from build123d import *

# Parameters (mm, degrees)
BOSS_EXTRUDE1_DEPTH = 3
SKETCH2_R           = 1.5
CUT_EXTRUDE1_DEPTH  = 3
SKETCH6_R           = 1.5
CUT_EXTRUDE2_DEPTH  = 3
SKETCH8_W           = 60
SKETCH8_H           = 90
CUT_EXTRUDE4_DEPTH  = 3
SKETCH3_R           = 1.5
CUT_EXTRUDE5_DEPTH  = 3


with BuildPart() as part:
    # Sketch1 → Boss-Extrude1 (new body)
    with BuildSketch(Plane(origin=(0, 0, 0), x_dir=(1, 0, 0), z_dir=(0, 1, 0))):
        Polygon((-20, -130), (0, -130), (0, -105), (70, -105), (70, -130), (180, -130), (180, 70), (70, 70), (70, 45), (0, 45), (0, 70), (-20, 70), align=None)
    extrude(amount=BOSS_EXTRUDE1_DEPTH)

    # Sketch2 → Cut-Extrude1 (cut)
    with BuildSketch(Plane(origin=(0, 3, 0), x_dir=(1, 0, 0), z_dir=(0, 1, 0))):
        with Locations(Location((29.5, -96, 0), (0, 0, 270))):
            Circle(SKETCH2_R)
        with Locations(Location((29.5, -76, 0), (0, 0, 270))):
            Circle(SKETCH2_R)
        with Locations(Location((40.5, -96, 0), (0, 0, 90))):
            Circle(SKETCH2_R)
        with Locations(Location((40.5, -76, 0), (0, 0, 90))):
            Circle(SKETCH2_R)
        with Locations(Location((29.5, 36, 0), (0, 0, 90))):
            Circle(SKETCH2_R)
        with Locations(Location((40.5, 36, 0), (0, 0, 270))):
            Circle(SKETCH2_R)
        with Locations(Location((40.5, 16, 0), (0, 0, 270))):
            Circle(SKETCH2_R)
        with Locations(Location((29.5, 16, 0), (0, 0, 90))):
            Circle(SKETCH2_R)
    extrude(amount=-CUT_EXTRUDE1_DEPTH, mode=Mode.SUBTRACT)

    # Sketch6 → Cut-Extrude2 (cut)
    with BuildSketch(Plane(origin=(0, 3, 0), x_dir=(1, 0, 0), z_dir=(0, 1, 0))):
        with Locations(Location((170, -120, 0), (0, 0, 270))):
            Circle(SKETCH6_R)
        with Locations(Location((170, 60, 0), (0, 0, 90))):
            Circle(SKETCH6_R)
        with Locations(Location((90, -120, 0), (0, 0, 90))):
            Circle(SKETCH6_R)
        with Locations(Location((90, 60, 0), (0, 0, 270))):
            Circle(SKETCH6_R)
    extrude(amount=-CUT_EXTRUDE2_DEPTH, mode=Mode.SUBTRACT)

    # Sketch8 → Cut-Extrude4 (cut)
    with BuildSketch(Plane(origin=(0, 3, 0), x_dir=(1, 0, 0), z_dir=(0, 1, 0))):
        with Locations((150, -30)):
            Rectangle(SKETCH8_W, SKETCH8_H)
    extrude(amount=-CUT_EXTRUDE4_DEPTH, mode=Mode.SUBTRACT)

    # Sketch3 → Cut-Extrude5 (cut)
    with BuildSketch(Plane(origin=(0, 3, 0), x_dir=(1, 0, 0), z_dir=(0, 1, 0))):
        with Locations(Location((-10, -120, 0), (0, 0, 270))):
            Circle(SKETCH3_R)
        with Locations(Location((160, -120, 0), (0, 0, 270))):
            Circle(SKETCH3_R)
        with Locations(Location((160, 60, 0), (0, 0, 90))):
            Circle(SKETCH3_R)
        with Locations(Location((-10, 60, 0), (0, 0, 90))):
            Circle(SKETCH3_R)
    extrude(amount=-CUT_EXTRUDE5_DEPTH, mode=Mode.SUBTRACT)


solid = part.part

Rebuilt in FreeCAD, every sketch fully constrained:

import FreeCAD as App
import Part
import Sketcher
from FreeCAD import Vector
Q = App.Units.Quantity


def add_polygon(sketch, points):
    """Adds a closed chain of lines whose ends are joined by coincident constraints."""
    first, n = sketch.GeometryCount, len(points)
    for a, b in zip(points, points[1:] + points[:1]):
        sketch.addGeometry(Part.LineSegment(App.Vector(*a, 0), App.Vector(*b, 0)), False)
    for i in range(n):
        sketch.addConstraint(Sketcher.Constraint("Coincident", first + i, 2, first + (i + 1) % n, 1))

doc = App.newDocument("Part")
body = doc.addObject("PartDesign::Body", "Body")

# Sketch on XZ plane
sketch1 = body.newObject("Sketcher::SketchObject", "Sketch")
sketch1.AttachmentSupport = (doc.getObject("XZ_Plane"), [""])
sketch1.MapMode = "FlatFace"
add_polygon(sketch1, [(-20, 130), (0, 130), (0, 105), (70, 105), (70, 130), (180, 130), (180, -70), (70, -70), (70, -45), (0, -45), (0, -70), (-20, -70)])  # lines 0-11
sketch1.addConstraint([
    Sketcher.Constraint("Horizontal", 0),
    Sketcher.Constraint("Vertical", 1),
    Sketcher.Constraint("Horizontal", 2),
    Sketcher.Constraint("Vertical", 3),
    Sketcher.Constraint("Horizontal", 4),
    Sketcher.Constraint("Vertical", 5),
    Sketcher.Constraint("Horizontal", 6),
    Sketcher.Constraint("Vertical", 7),
    Sketcher.Constraint("Horizontal", 8),
    Sketcher.Constraint("Vertical", 9),
    Sketcher.Constraint("Horizontal", 10),
    Sketcher.Constraint("Vertical", 11),
    Sketcher.Constraint("PointOnObject", 0, 2, -2),
    Sketcher.Constraint("PointOnObject", 8, 2, -2),
    Sketcher.Constraint("Horizontal", 0, 2, 3, 2),
    Sketcher.Constraint("Horizontal", 6, 2, 9, 2),
    Sketcher.Constraint("Vertical", 3, 2, 6, 2),
    Sketcher.Constraint("Equal", 3, 7),
    Sketcher.Constraint("DistanceX", 0, 1, 0, 2, Q("20 mm")),
    Sketcher.Constraint("DistanceX", 2, 1, 2, 2, Q("70 mm")),
    Sketcher.Constraint("DistanceX", 4, 1, 4, 2, Q("110 mm")),
    Sketcher.Constraint("DistanceY", 1, 2, 1, 1, Q("25 mm")),
    Sketcher.Constraint("DistanceY", 5, 2, 5, 1, Q("200 mm")),
    Sketcher.Constraint("DistanceY", -1, 1, 0, 2, Q("130 mm")),
])
pad1 = body.newObject("PartDesign::Pad", "Pad")
pad1.Profile = sketch1
pad1.Length = 3
pad1.Reversed = True

# Sketch on XZ plane
sketch2 = body.newObject("Sketcher::SketchObject", "Sketch001")
sketch2.AttachmentSupport = (doc.getObject("XZ_Plane"), [""])
sketch2.MapMode = "FlatFace"
sketch2.AttachmentOffset = App.Placement(Vector(0, 0, -3), App.Rotation())
sketch2.addGeometry([
    Part.Circle(Vector(29.5, 96, 0), Vector(0, 0, 1), 1.5),  # 0
    Part.Circle(Vector(29.5, 76, 0), Vector(0, 0, 1), 1.5),  # 1
    Part.Circle(Vector(40.5, 96, 0), Vector(0, 0, 1), 1.5),  # 2
    Part.Circle(Vector(40.5, 76, 0), Vector(0, 0, 1), 1.5),  # 3
    Part.Circle(Vector(29.5, -36, 0), Vector(0, 0, 1), 1.5),  # 4
    Part.Circle(Vector(40.5, -36, 0), Vector(0, 0, 1), 1.5),  # 5
    Part.Circle(Vector(40.5, -16, 0), Vector(0, 0, 1), 1.5),  # 6
    Part.Circle(Vector(29.5, -16, 0), Vector(0, 0, 1), 1.5),  # 7
], False)
sketch2.addConstraint([
    Sketcher.Constraint("Equal", 0, 1),
    Sketcher.Constraint("Equal", 1, 2),
    Sketcher.Constraint("Equal", 2, 3),
    Sketcher.Constraint("Equal", 3, 4),
    Sketcher.Constraint("Equal", 4, 5),
    Sketcher.Constraint("Equal", 5, 6),
    Sketcher.Constraint("Equal", 6, 7),
    Sketcher.Constraint("Horizontal", 0, 3, 2, 3),
    Sketcher.Constraint("Horizontal", 1, 3, 3, 3),
    Sketcher.Constraint("Horizontal", 4, 3, 5, 3),
    Sketcher.Constraint("Horizontal", 6, 3, 7, 3),
    Sketcher.Constraint("Vertical", 0, 3, 1, 3),
    Sketcher.Constraint("Vertical", 2, 3, 3, 3),
    Sketcher.Constraint("Vertical", 1, 3, 4, 3),
    Sketcher.Constraint("Vertical", 3, 3, 5, 3),
    Sketcher.Constraint("Vertical", 5, 3, 6, 3),
    Sketcher.Constraint("Vertical", 4, 3, 7, 3),
    Sketcher.Constraint("Diameter", 0, Q("3 mm")),
    Sketcher.Constraint("DistanceY", -1, 1, 0, 3, Q("96 mm")),
    Sketcher.Constraint("DistanceY", -1, 1, 1, 3, Q("76 mm")),
    Sketcher.Constraint("DistanceY", 4, 3, -1, 1, Q("36 mm")),
    Sketcher.Constraint("DistanceY", 6, 3, -1, 1, Q("16 mm")),
    Sketcher.Constraint("DistanceX", 0, 3, 2, 3, Q("11 mm")),
    Sketcher.Constraint("DistanceX", -1, 1, 0, 3, Q("29.5 mm")),
])
pocket1 = body.newObject("PartDesign::Pocket", "Pocket")
pocket1.Profile = sketch2
pocket1.Length = 3
pocket1.Reversed = True

# Sketch on XZ plane
sketch3 = body.newObject("Sketcher::SketchObject", "Sketch002")
sketch3.AttachmentSupport = (doc.getObject("XZ_Plane"), [""])
sketch3.MapMode = "FlatFace"
sketch3.AttachmentOffset = App.Placement(Vector(0, 0, -3), App.Rotation())
sketch3.addGeometry([
    Part.Circle(Vector(170, 120, 0), Vector(0, 0, 1), 1.5),
    Part.Circle(Vector(170, -60, 0), Vector(0, 0, 1), 1.5),
    Part.Circle(Vector(90, 120, 0), Vector(0, 0, 1), 1.5),
    Part.Circle(Vector(90, -60, 0), Vector(0, 0, 1), 1.5),
], False)
sketch3.addConstraint([
    Sketcher.Constraint("Equal", 0, 1),
    Sketcher.Constraint("Equal", 1, 2),
    Sketcher.Constraint("Equal", 2, 3),
    Sketcher.Constraint("Horizontal", 0, 3, 2, 3),
    Sketcher.Constraint("Horizontal", 1, 3, 3, 3),
    Sketcher.Constraint("Vertical", 0, 3, 1, 3),
    Sketcher.Constraint("Vertical", 2, 3, 3, 3),
    Sketcher.Constraint("Diameter", 0, Q("3 mm")),
    Sketcher.Constraint("DistanceX", -1, 1, 0, 3, Q("170 mm")),
    Sketcher.Constraint("DistanceY", -1, 1, 0, 3, Q("120 mm")),
    Sketcher.Constraint("DistanceY", 1, 3, -1, 1, Q("60 mm")),
    Sketcher.Constraint("DistanceX", -1, 1, 2, 3, Q("90 mm")),
])
pocket2 = body.newObject("PartDesign::Pocket", "Pocket001")
pocket2.Profile = sketch3
pocket2.Length = 3
pocket2.Reversed = True

# Sketch on XZ plane
sketch4 = body.newObject("Sketcher::SketchObject", "Sketch003")
sketch4.AttachmentSupport = (doc.getObject("XZ_Plane"), [""])
sketch4.MapMode = "FlatFace"
sketch4.AttachmentOffset = App.Placement(Vector(0, 0, -3), App.Rotation())
add_polygon(sketch4, [(120, -15), (120, 75), (180, 75), (180, -15)])  # lines 0-3
sketch4.addConstraint([
    Sketcher.Constraint("Vertical", 0),
    Sketcher.Constraint("Horizontal", 1),
    Sketcher.Constraint("Vertical", 2),
    Sketcher.Constraint("Horizontal", 3),
    Sketcher.Constraint("DistanceX", 1, 1, 1, 2, Q("60 mm")),
    Sketcher.Constraint("DistanceY", 0, 1, 0, 2, Q("90 mm")),
    Sketcher.Constraint("DistanceX", -1, 1, 0, 2, Q("120 mm")),
    Sketcher.Constraint("DistanceY", -1, 1, 0, 2, Q("75 mm")),
])
pocket3 = body.newObject("PartDesign::Pocket", "Pocket002")
pocket3.Profile = sketch4
pocket3.Length = 3
pocket3.Reversed = True

# Sketch on XZ plane
sketch5 = body.newObject("Sketcher::SketchObject", "Sketch004")
sketch5.AttachmentSupport = (doc.getObject("XZ_Plane"), [""])
sketch5.MapMode = "FlatFace"
sketch5.AttachmentOffset = App.Placement(Vector(0, 0, -3), App.Rotation())
sketch5.addGeometry([
    Part.Circle(Vector(-10, 120, 0), Vector(0, 0, 1), 1.5),
    Part.Circle(Vector(160, 120, 0), Vector(0, 0, 1), 1.5),
    Part.Circle(Vector(160, -60, 0), Vector(0, 0, 1), 1.5),
    Part.Circle(Vector(-10, -60, 0), Vector(0, 0, 1), 1.5),
], False)
sketch5.addConstraint([
    Sketcher.Constraint("Equal", 0, 1),
    Sketcher.Constraint("Equal", 1, 2),
    Sketcher.Constraint("Equal", 2, 3),
    Sketcher.Constraint("Horizontal", 0, 3, 1, 3),
    Sketcher.Constraint("Horizontal", 2, 3, 3, 3),
    Sketcher.Constraint("Vertical", 1, 3, 2, 3),
    Sketcher.Constraint("Vertical", 0, 3, 3, 3),
    Sketcher.Constraint("Diameter", 0, Q("3 mm")),
    Sketcher.Constraint("DistanceX", 0, 3, -1, 1, Q("10 mm")),
    Sketcher.Constraint("DistanceY", -1, 1, 0, 3, Q("120 mm")),
    Sketcher.Constraint("DistanceX", -1, 1, 1, 3, Q("160 mm")),
    Sketcher.Constraint("DistanceY", 2, 3, -1, 1, Q("60 mm")),
])
pocket4 = body.newObject("PartDesign::Pocket", "Pocket003")
pocket4.Profile = sketch5
pocket4.Length = 3
pocket4.Reversed = True

doc.recompute()
